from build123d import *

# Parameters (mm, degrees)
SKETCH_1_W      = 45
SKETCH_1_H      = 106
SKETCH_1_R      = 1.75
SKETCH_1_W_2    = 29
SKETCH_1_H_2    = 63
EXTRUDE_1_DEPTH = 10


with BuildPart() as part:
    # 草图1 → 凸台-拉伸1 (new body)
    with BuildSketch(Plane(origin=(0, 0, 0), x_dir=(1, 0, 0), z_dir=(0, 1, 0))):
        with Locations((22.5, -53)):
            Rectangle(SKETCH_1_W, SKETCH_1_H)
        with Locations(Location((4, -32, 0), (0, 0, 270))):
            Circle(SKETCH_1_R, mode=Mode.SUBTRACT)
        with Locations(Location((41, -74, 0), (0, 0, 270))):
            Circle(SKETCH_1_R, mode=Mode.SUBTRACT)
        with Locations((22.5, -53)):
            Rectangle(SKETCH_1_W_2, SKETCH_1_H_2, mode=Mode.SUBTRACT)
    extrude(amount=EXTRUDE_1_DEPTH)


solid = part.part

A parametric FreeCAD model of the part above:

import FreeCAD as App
import Part
import Sketcher
Q = App.Units.Quantity


def add_polygon(sketch, points):
    """Adds a closed chain of lines whose ends are joined by coincident constraints."""
    first, n = sketch.GeometryCount, len(points)
    for a, b in zip(points, points[1:] + points[:1]):
        sketch.addGeometry(Part.LineSegment(App.Vector(*a, 0), App.Vector(*b, 0)), False)
    for i in range(n):
        sketch.addConstraint(Sketcher.Constraint("Coincident", first + i, 2, first + (i + 1) % n, 1))

doc = App.newDocument("Part")
body = doc.addObject("PartDesign::Body", "Body")

# Sketch on XZ plane
sketch1 = body.newObject("Sketcher::SketchObject", "Sketch")
sketch1.AttachmentSupport = (doc.getObject("XZ_Plane"), [""])
sketch1.MapMode = "FlatFace"
add_polygon(sketch1, [(0, 0), (0, 106), (45, 106), (45, 0)])  # lines 0-3
sketch1.addGeometry(Part.Circle(App.Vector(41, 74, 0), App.Vector(0, 0, 1), 1.8), False)  # 4
sketch1.addGeometry(Part.Circle(App.Vector(4, 32, 0), App.Vector(0, 0, 1), 1.8), False)  # 5
add_polygon(sketch1, [(37, 84.5), (8, 84.5), (8, 21.5), (37, 21.5)])  # lines 6-9
sketch1.addConstraint([
    Sketcher.Constraint("Vertical", 0),
    Sketcher.Constraint("Horizontal", 1),
    Sketcher.Constraint("Vertical", 2),
    Sketcher.Constraint("Horizontal", 3),
    Sketcher.Constraint("Horizontal", 6),
    Sketcher.Constraint("Vertical", 7),
    Sketcher.Constraint("Horizontal", 8),
    Sketcher.Constraint("Vertical", 9),
    Sketcher.Constraint("Coincident", 3, 2, -1, 1),
    Sketcher.Constraint("Equal", 4, 5),
    Sketcher.Constraint("Diameter", 4, Q("3.5 mm")),
    Sketcher.Constraint("DistanceX", 1, 1, 1, 2, Q("45 mm")),
    Sketcher.Constraint("DistanceX", 6, 2, 6, 1, Q("29 mm")),
    Sketcher.Constraint("DistanceY", 0, 1, 0, 2, Q("106 mm")),
    Sketcher.Constraint("DistanceY", 7, 2, 7, 1, Q("63 mm")),
    Sketcher.Constraint("DistanceX", -1, 1, 4, 3, Q("41 mm")),
    Sketcher.Constraint("DistanceY", -1, 1, 4, 3, Q("74 mm")),
    Sketcher.Constraint("DistanceX", -1, 1, 5, 3, Q("4 mm")),
    Sketcher.Constraint("DistanceY", -1, 1, 5, 3, Q("32 mm")),
    Sketcher.Constraint("DistanceX", -1, 1, 6, 2, Q("8 mm")),
    Sketcher.Constraint("DistanceY", -1, 1, 6, 2, Q("84.5 mm")),
])
pad1 = body.newObject("PartDesign::Pad", "Pad")
pad1.Profile = sketch1
pad1.Length = 10
pad1.Reversed = True

doc.recompute()
